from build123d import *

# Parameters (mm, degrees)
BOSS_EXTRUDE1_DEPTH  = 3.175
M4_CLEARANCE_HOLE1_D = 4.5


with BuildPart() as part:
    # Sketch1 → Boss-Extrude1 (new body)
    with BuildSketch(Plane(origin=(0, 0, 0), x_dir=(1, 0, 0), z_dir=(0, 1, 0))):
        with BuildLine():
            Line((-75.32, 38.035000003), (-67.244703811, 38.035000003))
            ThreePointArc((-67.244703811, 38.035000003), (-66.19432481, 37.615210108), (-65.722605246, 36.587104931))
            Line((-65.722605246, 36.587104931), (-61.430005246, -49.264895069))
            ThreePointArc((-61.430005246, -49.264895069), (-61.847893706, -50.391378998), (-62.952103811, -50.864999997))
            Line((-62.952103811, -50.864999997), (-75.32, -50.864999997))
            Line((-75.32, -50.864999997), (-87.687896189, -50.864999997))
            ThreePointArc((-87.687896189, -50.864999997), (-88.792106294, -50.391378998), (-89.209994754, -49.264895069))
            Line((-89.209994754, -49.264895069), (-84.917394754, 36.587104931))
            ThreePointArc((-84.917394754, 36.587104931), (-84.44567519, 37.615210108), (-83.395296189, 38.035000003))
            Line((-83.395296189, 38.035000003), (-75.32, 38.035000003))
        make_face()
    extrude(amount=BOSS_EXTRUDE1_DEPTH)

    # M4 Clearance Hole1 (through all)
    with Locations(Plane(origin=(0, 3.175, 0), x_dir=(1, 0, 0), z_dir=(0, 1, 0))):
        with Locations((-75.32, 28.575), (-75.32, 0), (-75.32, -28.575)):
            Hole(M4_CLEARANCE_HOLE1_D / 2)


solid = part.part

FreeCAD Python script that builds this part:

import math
import FreeCAD as App
import Part
import Sketcher
from FreeCAD import Vector
Q = App.Units.Quantity

doc = App.newDocument("Part")
body = doc.addObject("PartDesign::Body", "Body")

sketch1 = body.newObject("Sketcher::SketchObject", "Sketch")
sketch1.AttachmentSupport = (doc.getObject("XZ_Plane"), [""])
sketch1.MapMode = "FlatFace"
sketch1.addGeometry(Part.ArcOfCircle(Part.Circle(Vector(-67.2, -36.5, 0), Vector(0, 0, 1), 1.5), math.radians(-90), math.radians(-3)), False)
sketch1.addGeometry(Part.LineSegment(Vector(-67.2, -38, 0), Vector(-83.4, -38, 0)), False)
sketch1.addGeometry(Part.ArcOfCircle(Part.Circle(Vector(-83.4, -36.5, 0), Vector(0, 0, 1), 1.5), math.radians(-177), math.radians(-90)), False)
sketch1.addGeometry(Part.LineSegment(Vector(-84.9, -36.6, 0), Vector(-89.2, 49.3, 0)), False)
sketch1.addGeometry(Part.ArcOfCircle(Part.Circle(Vector(-87.7, 49.3, 0), Vector(0, 0, 1), 1.5), math.radians(90), math.radians(183)), False)
sketch1.addGeometry(Part.LineSegment(Vector(-87.7, 50.9, 0), Vector(-63, 50.9, 0)), False)
sketch1.addGeometry(Part.ArcOfCircle(Part.Circle(Vector(-63, 49.3, 0), Vector(0, 0, 1), 1.5), math.radians(-3), math.radians(90)), False)
sketch1.addGeometry(Part.LineSegment(Vector(-61.4, 49.3, 0), Vector(-65.7, -36.6, 0)), False)
sketch1.addConstraint(Sketcher.Constraint("Tangent", 0, 1, 1, 1))
sketch1.addConstraint(Sketcher.Constraint("Tangent", 1, 2, 2, 2))
sketch1.addConstraint(Sketcher.Constraint("Tangent", 2, 1, 3, 1))
sketch1.addConstraint(Sketcher.Constraint("Tangent", 3, 2, 4, 2))
sketch1.addConstraint(Sketcher.Constraint("Tangent", 4, 1, 5, 1))
sketch1.addConstraint(Sketcher.Constraint("Tangent", 5, 2, 6, 2))
sketch1.addConstraint(Sketcher.Constraint("Tangent", 6, 1, 7, 1))
sketch1.addConstraint(Sketcher.Constraint("Tangent", 7, 2, 0, 2))
sketch1.addConstraint(Sketcher.Constraint("Horizontal", 1))
sketch1.addConstraint(Sketcher.Constraint("Horizontal", 5))
sketch1.addConstraint(Sketcher.Constraint("Equal", 0, 2))
sketch1.addConstraint(Sketcher.Constraint("Equal", 2, 4))
sketch1.addConstraint(Sketcher.Constraint("Equal", 4, 6))
sketch1.addConstraint(Sketcher.Constraint("Horizontal", 3, 2, 6, 1))
sketch1.addConstraint(Sketcher.Constraint("Radius", 0, Q("0.06 in")))
sketch1.addConstraint(Sketcher.Constraint("DistanceY", 2, 3, 4, 3, Q("3.38 in")))
sketch1.addConstraint(Sketcher.Constraint("DistanceX", 4, 3, 2, 3, Q("0.169 in")))
sketch1.addConstraint(Sketcher.Constraint("DistanceY", 0, 3, -1, 1, Q("36.511 mm")))
sketch1.addConstraint(Sketcher.Constraint("DistanceX", 1, 2, 1, 1, Q("16.150592 mm")))
sketch1.addConstraint(Sketcher.Constraint("DistanceX", 0, 3, -1, 1, Q("67.244704 mm")))
pad1 = body.newObject("PartDesign::Pad", "Pad")
pad1.Profile = sketch1
pad1.Length = Q("0.125 in")
pad1.Reversed = True

sketch2 = body.newObject("Sketcher::SketchObject", "Sketch001")
sketch2.AttachmentSupport = (doc.getObject("XZ_Plane"), [""])
sketch2.MapMode = "FlatFace"
sketch2.AttachmentOffset = App.Placement(Vector(0, 0, -0.125 * 25.4), App.Rotation())
sketch2.addGeometry(Part.Circle(Vector(-75.3, -28.6, 0), Vector(0, 0, 1), 2.2), False)
sketch2.addGeometry(Part.Circle(Vector(-75.3, 0, 0), Vector(0, 0, 1), 2.2), False)
sketch2.addGeometry(Part.Circle(Vector(-75.3, 28.6, 0), Vector(0, 0, 1), 2.2), False)
sketch2.addConstraint(Sketcher.Constraint("Equal", 0, 1))
sketch2.addConstraint(Sketcher.Constraint("Equal", 1, 2))
sketch2.addConstraint(Sketcher.Constraint("Symmetric", 0, 3, 2, 3, -1))
sketch2.addConstraint(Sketcher.Constraint("PointOnObject", 1, 3, -1))
sketch2.addConstraint(Sketcher.Constraint("Vertical", 0, 3, 1, 3))
sketch2.addConstraint(Sketcher.Constraint("Diameter", 0, Q("4.5 mm")))
sketch2.addConstraint(Sketcher.Constraint("DistanceY", 0, 3, 2, 3, Q("2.25 in")))
sketch2.addConstraint(Sketcher.Constraint("DistanceX", 0, 3, -1, 1, Q("75.32 mm")))
doc.recompute()
hole = body.newObject("PartDesign::Hole", "Hole")
hole.Profile = sketch2
hole.ThreadType = "None"
hole.Diameter = 4.5
hole.DepthType = "ThroughAll"
hole.Reversed = True

doc.recompute()
